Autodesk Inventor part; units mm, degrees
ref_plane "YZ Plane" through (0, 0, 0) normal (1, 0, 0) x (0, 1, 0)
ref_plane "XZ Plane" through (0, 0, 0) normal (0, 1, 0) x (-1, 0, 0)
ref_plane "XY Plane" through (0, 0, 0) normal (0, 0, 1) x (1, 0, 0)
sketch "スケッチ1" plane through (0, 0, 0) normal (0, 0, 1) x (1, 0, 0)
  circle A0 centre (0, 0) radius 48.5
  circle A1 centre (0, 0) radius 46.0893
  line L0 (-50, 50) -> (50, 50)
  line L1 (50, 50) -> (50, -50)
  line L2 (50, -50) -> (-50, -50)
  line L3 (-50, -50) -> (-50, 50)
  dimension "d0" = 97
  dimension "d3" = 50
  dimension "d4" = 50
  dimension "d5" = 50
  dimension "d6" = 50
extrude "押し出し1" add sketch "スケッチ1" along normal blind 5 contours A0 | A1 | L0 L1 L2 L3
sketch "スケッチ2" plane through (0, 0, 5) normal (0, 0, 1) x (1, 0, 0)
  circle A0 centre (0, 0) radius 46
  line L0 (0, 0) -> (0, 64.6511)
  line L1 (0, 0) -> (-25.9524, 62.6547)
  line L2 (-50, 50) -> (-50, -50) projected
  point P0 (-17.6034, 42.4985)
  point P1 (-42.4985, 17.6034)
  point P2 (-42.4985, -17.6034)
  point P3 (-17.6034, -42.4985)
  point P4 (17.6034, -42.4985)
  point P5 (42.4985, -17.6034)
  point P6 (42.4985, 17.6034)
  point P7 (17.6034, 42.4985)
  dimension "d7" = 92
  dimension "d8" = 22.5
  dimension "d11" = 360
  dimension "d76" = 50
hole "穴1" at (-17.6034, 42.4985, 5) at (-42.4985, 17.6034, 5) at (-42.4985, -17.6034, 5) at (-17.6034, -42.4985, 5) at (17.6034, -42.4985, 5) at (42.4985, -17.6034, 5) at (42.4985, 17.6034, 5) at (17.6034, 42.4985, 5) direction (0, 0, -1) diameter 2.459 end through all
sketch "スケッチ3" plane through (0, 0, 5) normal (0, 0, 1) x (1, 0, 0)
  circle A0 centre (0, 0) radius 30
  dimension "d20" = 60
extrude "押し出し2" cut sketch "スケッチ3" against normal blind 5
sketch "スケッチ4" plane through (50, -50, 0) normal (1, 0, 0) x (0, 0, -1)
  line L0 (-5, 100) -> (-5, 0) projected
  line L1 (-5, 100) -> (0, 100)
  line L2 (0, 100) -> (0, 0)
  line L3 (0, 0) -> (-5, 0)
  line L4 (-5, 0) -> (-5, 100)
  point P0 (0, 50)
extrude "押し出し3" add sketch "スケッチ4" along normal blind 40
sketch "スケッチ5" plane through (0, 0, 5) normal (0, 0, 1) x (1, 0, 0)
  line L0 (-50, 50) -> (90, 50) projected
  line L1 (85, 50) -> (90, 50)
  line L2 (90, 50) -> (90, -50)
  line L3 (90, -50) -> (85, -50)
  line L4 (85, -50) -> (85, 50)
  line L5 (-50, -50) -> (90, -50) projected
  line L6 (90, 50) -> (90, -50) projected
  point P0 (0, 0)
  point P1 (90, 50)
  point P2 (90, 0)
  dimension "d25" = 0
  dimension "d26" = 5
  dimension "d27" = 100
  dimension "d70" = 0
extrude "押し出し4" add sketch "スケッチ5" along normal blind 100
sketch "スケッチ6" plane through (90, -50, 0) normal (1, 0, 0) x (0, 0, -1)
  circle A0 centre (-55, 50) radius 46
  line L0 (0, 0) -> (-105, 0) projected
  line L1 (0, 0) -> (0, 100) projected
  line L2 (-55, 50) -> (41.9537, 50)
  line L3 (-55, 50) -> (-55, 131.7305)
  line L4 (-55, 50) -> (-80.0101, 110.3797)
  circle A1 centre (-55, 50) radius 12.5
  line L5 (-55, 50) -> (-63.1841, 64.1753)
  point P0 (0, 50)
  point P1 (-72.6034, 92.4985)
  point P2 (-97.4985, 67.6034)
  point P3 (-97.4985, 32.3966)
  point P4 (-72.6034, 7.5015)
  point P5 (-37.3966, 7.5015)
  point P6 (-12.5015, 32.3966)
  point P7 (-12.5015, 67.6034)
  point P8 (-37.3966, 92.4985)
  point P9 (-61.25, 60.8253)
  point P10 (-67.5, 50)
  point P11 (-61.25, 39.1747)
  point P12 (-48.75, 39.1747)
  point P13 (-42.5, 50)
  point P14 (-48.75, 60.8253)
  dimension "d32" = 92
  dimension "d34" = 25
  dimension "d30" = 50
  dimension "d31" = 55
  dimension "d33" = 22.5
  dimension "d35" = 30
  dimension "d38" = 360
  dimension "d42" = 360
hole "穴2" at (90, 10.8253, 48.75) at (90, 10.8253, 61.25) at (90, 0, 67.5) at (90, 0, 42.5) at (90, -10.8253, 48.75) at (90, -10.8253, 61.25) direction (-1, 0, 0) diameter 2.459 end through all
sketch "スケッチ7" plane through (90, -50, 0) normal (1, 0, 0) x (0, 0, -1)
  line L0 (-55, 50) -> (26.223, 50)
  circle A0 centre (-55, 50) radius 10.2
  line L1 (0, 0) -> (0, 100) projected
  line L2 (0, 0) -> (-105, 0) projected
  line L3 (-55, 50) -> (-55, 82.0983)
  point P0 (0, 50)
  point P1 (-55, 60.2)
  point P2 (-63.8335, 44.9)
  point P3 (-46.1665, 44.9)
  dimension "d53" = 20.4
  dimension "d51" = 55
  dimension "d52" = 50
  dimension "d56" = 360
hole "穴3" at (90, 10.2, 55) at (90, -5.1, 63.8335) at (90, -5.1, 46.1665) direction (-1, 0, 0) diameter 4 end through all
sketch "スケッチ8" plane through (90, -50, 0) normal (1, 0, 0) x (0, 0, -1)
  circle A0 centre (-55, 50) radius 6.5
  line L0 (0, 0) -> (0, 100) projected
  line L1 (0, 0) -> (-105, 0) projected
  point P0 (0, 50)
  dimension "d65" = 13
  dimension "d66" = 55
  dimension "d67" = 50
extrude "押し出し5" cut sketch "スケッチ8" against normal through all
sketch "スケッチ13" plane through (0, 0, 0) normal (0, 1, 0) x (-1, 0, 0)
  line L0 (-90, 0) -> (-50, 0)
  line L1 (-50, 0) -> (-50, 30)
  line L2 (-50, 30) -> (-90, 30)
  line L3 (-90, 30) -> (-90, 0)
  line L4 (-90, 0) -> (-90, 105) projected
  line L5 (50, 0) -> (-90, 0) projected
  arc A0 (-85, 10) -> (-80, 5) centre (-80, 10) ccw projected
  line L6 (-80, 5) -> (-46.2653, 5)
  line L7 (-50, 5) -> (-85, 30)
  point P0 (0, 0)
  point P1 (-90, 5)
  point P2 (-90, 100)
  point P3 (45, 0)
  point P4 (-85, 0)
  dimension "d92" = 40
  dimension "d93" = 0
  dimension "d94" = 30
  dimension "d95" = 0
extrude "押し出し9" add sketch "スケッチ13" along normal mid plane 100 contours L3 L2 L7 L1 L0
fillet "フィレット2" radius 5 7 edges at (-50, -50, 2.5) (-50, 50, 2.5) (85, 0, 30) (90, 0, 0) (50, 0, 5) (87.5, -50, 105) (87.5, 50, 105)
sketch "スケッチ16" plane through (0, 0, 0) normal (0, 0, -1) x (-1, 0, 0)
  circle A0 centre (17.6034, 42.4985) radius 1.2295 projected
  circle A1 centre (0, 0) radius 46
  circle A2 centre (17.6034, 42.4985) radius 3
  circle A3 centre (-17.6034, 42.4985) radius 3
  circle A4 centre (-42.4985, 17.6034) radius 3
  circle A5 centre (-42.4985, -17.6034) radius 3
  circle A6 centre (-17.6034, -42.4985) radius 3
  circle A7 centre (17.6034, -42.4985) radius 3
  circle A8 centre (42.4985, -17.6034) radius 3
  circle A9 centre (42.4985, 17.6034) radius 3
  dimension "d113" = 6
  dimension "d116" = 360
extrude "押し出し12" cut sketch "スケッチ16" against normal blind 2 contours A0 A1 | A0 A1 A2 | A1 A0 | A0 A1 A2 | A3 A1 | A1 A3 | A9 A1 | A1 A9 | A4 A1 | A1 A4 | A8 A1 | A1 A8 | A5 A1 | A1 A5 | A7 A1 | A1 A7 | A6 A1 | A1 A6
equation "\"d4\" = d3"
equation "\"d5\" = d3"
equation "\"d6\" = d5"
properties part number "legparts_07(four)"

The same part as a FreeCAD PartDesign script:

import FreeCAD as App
import Part
import Sketcher

V = App.Vector


def edges_at(feature, points):
    """Names of the edges that pass closest to the given points."""
    edges = feature.Shape.Edges
    near = lambda p: min(range(len(edges)), key=lambda i: edges[i].distToShape(Part.Vertex(*p))[0])
    return sorted({f"Edge{near(p) + 1}" for p in points})


def add_polygon(sketch, points):
    """Adds a closed chain of lines whose ends are joined by coincident constraints."""
    first, n = sketch.GeometryCount, len(points)
    for a, b in zip(points, points[1:] + points[:1]):
        sketch.addGeometry(Part.LineSegment(App.Vector(*a, 0), App.Vector(*b, 0)), False)
    for i in range(n):
        sketch.addConstraint(Sketcher.Constraint("Coincident", first + i, 2, first + (i + 1) % n, 1))

doc = App.newDocument("Part")
body = doc.addObject("PartDesign::Body", "Body")

# Sketch on XY plane
sketch1 = body.newObject("Sketcher::SketchObject", "Sketch")
sketch1.AttachmentSupport = (doc.getObject("XY_Plane"), [""])
sketch1.MapMode = "FlatFace"
add_polygon(sketch1, [(50, 50), (-50, 50), (-50, -50), (50, -50)])  # lines 0-3
sketch1.addConstraint([
    Sketcher.Constraint("Horizontal", 0),
    Sketcher.Constraint("Vertical", 1),
    Sketcher.Constraint("Horizontal", 2),
    Sketcher.Constraint("Vertical", 3),
    Sketcher.Constraint("Symmetric", 0, 2, 2, 2, -1, 1),
    Sketcher.Constraint("Equal", 2, 1),
    Sketcher.Constraint("DistanceX", 0, 2, -1, 1, 50.0),
])
pad1 = body.newObject("PartDesign::Pad", "Pad")
pad1.Profile = sketch1
pad1.Length = 5

# Sketch on XY plane
sketch2 = body.newObject("Sketcher::SketchObject", "Sketch001")
sketch2.AttachmentSupport = (doc.getObject("XY_Plane"), [""])
sketch2.MapMode = "FlatFace"
sketch2.AttachmentOffset = App.Placement(V(0, 0, 5), App.Rotation())
sketch2.addGeometry([
    Part.Circle(V(-17.6, 42.5, 0), V(0, 0, 1), 1.2),  # 0
    Part.Circle(V(-42.5, 17.6, 0), V(0, 0, 1), 1.2),  # 1
    Part.Circle(V(-42.5, -17.6, 0), V(0, 0, 1), 1.2),  # 2
    Part.Circle(V(-17.6, -42.5, 0), V(0, 0, 1), 1.2),  # 3
    Part.Circle(V(17.6, -42.5, 0), V(0, 0, 1), 1.2),  # 4
    Part.Circle(V(42.5, -17.6, 0), V(0, 0, 1), 1.2),  # 5
    Part.Circle(V(42.5, 17.6, 0), V(0, 0, 1), 1.2),  # 6
    Part.Circle(V(17.6, 42.5, 0), V(0, 0, 1), 1.2),  # 7
], False)
sketch2.addConstraint([
    Sketcher.Constraint("Equal", 0, 1),
    Sketcher.Constraint("Equal", 1, 2),
    Sketcher.Constraint("Equal", 2, 3),
    Sketcher.Constraint("Equal", 3, 4),
    Sketcher.Constraint("Equal", 4, 5),
    Sketcher.Constraint("Equal", 5, 6),
    Sketcher.Constraint("Equal", 6, 7),
    Sketcher.Constraint("Symmetric", 0, 3, 4, 3, -1, 1),
    Sketcher.Constraint("Symmetric", 1, 3, 5, 3, -1, 1),
    Sketcher.Constraint("Symmetric", 2, 3, 6, 3, -1, 1),
    Sketcher.Constraint("Symmetric", 3, 3, 7, 3, -1, 1),
    Sketcher.Constraint("Symmetric", 3, 3, 4, 3, -2),
    Sketcher.Constraint("Symmetric", 2, 3, 5, 3, -2),
    Sketcher.Constraint("Diameter", 0, 2.459),
    Sketcher.Constraint("DistanceX", 1, 3, 0, 3, 24.895),
    Sketcher.Constraint("DistanceY", 1, 3, 0, 3, 24.895),
    Sketcher.Constraint("DistanceY", 2, 3, 0, 3, 60.102),
    Sketcher.Constraint("DistanceX", 2, 3, 4, 3, 60.102),
])
doc.recompute()
hole = body.newObject("PartDesign::Hole", "Hole")
hole.Profile = sketch2
hole.ThreadType = "None"
hole.Diameter = 2.459
hole.DepthType = "ThroughAll"

# Sketch on XY plane
sketch3 = body.newObject("Sketcher::SketchObject", "Sketch002")
sketch3.AttachmentSupport = (doc.getObject("XY_Plane"), [""])
sketch3.MapMode = "FlatFace"
sketch3.AttachmentOffset = App.Placement(V(0, 0, 5), App.Rotation())
sketch3.addGeometry(Part.Circle(V(0, 0, 0), V(0, 0, 1), 30), False)
sketch3.addConstraint([
    Sketcher.Constraint("Coincident", 0, 3, -1, 1),
    Sketcher.Constraint("Diameter", 0, 60.0),
])
pocket1 = body.newObject("PartDesign::Pocket", "Pocket")
pocket1.Profile = sketch3
pocket1.Length = 5

# Sketch on YZ plane
sketch4 = body.newObject("Sketcher::SketchObject", "Sketch003")
sketch4.AttachmentSupport = (doc.getObject("YZ_Plane"), [""])
sketch4.MapMode = "FlatFace"
sketch4.AttachmentOffset = App.Placement(V(0, 0, 50), App.Rotation())
add_polygon(sketch4, [(50, 0), (50, 5), (-50, 5), (-50, 0)])  # lines 0-3
sketch4.addConstraint([
    Sketcher.Constraint("Vertical", 0),
    Sketcher.Constraint("Horizontal", 1),
    Sketcher.Constraint("Vertical", 2),
    Sketcher.Constraint("Horizontal", 3),
    Sketcher.Constraint("Symmetric", 2, 2, 3, 2, -1, 1),
    Sketcher.Constraint("DistanceX", 1, 2, 1, 1, 100.0),
    Sketcher.Constraint("DistanceY", 0, 1, 0, 2, 5.0),
])
pad2 = body.newObject("PartDesign::Pad", "Pad001")
pad2.Profile = sketch4
pad2.Length = 40

# Sketch on XY plane
sketch5 = body.newObject("Sketcher::SketchObject", "Sketch004")
sketch5.AttachmentSupport = (doc.getObject("XY_Plane"), [""])
sketch5.MapMode = "FlatFace"
sketch5.AttachmentOffset = App.Placement(V(0, 0, 5), App.Rotation())
add_polygon(sketch5, [(90, 50), (85, 50), (85, -50), (90, -50)])  # lines 0-3
sketch5.addConstraint([
    Sketcher.Constraint("Horizontal", 0),
    Sketcher.Constraint("Vertical", 1),
    Sketcher.Constraint("Horizontal", 2),
    Sketcher.Constraint("Vertical", 3),
    Sketcher.Constraint("DistanceX", 0, 2, 0, 1, 5.0),
    Sketcher.Constraint("DistanceY", 1, 2, 1, 1, 100.0),
    Sketcher.Constraint("DistanceX", -1, 1, 0, 2, 85.0),
    Sketcher.Constraint("DistanceY", -1, 1, 0, 2, 50.0),
])
pad3 = body.newObject("PartDesign::Pad", "Pad002")
pad3.Profile = sketch5
pad3.Length = 100

# Sketch on YZ plane
sketch6 = body.newObject("Sketcher::SketchObject", "Sketch005")
sketch6.AttachmentSupport = (doc.getObject("YZ_Plane"), [""])
sketch6.MapMode = "FlatFace"
sketch6.AttachmentOffset = App.Placement(V(0, 0, 90), App.Rotation())
sketch6.addGeometry([
    Part.Circle(V(10.8, 48.8, 0), V(0, 0, 1), 1.2),  # 0
    Part.Circle(V(10.8, 61.2, 0), V(0, 0, 1), 1.2),  # 1
    Part.Circle(V(0, 67.5, 0), V(0, 0, 1), 1.2),  # 2
    Part.Circle(V(0, 42.5, 0), V(0, 0, 1), 1.2),  # 3
    Part.Circle(V(-10.8, 48.8, 0), V(0, 0, 1), 1.2),  # 4
    Part.Circle(V(-10.8, 61.2, 0), V(0, 0, 1), 1.2),  # 5
], False)
sketch6.addConstraint([
    Sketcher.Constraint("Equal", 0, 1),
    Sketcher.Constraint("Equal", 1, 2),
    Sketcher.Constraint("Equal", 2, 3),
    Sketcher.Constraint("Equal", 3, 4),
    Sketcher.Constraint("Equal", 4, 5),
    Sketcher.Constraint("Symmetric", 0, 3, 4, 3, -2),
    Sketcher.Constraint("Symmetric", 1, 3, 5, 3, -2),
    Sketcher.Constraint("PointOnObject", 2, 3, -2),
    Sketcher.Constraint("PointOnObject", 3, 3, -2),
    Sketcher.Constraint("Vertical", 0, 3, 1, 3),
    Sketcher.Constraint("Diameter", 0, 2.459),
    Sketcher.Constraint("DistanceY", 3, 3, 2, 3, 25.0),
    Sketcher.Constraint("DistanceY", -1, 1, 2, 3, 67.5),
    Sketcher.Constraint("DistanceY", 0, 3, 1, 3, 12.5),
    Sketcher.Constraint("DistanceY", -1, 1, 0, 3, 48.75),
    Sketcher.Constraint("DistanceX", -1, 1, 0, 3, 10.8253),
])
doc.recompute()
hole2 = body.newObject("PartDesign::Hole", "Hole001")
hole2.Profile = sketch6
hole2.ThreadType = "None"
hole2.Diameter = 2.459
hole2.DepthType = "ThroughAll"

# Sketch on YZ plane
sketch7 = body.newObject("Sketcher::SketchObject", "Sketch006")
sketch7.AttachmentSupport = (doc.getObject("YZ_Plane"), [""])
sketch7.MapMode = "FlatFace"
sketch7.AttachmentOffset = App.Placement(V(0, 0, 90), App.Rotation())
sketch7.addGeometry([
    Part.Circle(V(10.2, 55, 0), V(0, 0, 1), 2),
    Part.Circle(V(-5.1, 63.8, 0), V(0, 0, 1), 2),
    Part.Circle(V(-5.1, 46.2, 0), V(0, 0, 1), 2),
], False)
sketch7.addConstraint([
    Sketcher.Constraint("Equal", 0, 1),
    Sketcher.Constraint("Equal", 1, 2),
    Sketcher.Constraint("Vertical", 1, 3, 2, 3),
    Sketcher.Constraint("Diameter", 0, 4.0),
    Sketcher.Constraint("DistanceY", -1, 1, 0, 3, 55.0),
    Sketcher.Constraint("DistanceX", -1, 1, 0, 3, 10.2),
    Sketcher.Constraint("DistanceX", 1, 3, -1, 1, 5.1),
    Sketcher.Constraint("DistanceY", 2, 3, 1, 3, 17.667),
    Sketcher.Constraint("DistanceY", -1, 1, 1, 3, 63.8335),
])
doc.recompute()
hole3 = body.newObject("PartDesign::Hole", "Hole002")
hole3.Profile = sketch7
hole3.ThreadType = "None"
hole3.Diameter = 4
hole3.DepthType = "ThroughAll"

# Sketch on YZ plane
sketch8 = body.newObject("Sketcher::SketchObject", "Sketch007")
sketch8.AttachmentSupport = (doc.getObject("YZ_Plane"), [""])
sketch8.MapMode = "FlatFace"
sketch8.AttachmentOffset = App.Placement(V(0, 0, 90), App.Rotation())
sketch8.addGeometry(Part.Circle(V(0, 55, 0), V(0, 0, 1), 6), False)
sketch8.addConstraint([
    Sketcher.Constraint("PointOnObject", 0, 3, -2),
    Sketcher.Constraint("Diameter", 0, 13.0),
    Sketcher.Constraint("DistanceY", -1, 1, 0, 3, 55.0),
])
pocket2 = body.newObject("PartDesign::Pocket", "Pocket001")
pocket2.Profile = sketch8
pocket2.Type = "ThroughAll"

# Sketch on XZ plane
sketch9 = body.newObject("Sketcher::SketchObject", "Sketch008")
sketch9.AttachmentSupport = (doc.getObject("XZ_Plane"), [""])
sketch9.MapMode = "FlatFace"
add_polygon(sketch9, [(90, 30), (90, 0), (50, 0), (50, 5), (85, 30)])  # lines 0-4
sketch9.addConstraint([
    Sketcher.Constraint("Vertical", 0),
    Sketcher.Constraint("Horizontal", 1),
    Sketcher.Constraint("Vertical", 2),
    Sketcher.Constraint("Horizontal", 4),
    Sketcher.Constraint("PointOnObject", 0, 2, -1),
    Sketcher.Constraint("Equal", 4, 2),
    Sketcher.Constraint("DistanceX", 1, 2, 1, 1, 40.0),
    Sketcher.Constraint("DistanceY", 0, 2, 0, 1, 30.0),
    Sketcher.Constraint("DistanceX", 4, 1, 4, 2, 5.0),
    Sketcher.Constraint("DistanceX", -1, 1, 0, 2, 90.0),
])
pad4 = body.newObject("PartDesign::Pad", "Pad003")
pad4.Profile = sketch9
pad4.Length = 100
pad4.Midplane = True
doc.recompute()

fillet = body.newObject("PartDesign::Fillet", "Fillet")
fillet.Base = (pad4, edges_at(pad4, [
    (-50, -50, 2.5),
    (-50, 50, 2.5),
    (85, 0, 30),
    (90, 0, 0),
    (50, 0, 5),
    (87.5, -50, 105),
    (87.5, 50, 105),
]))
fillet.Radius = 5

# Sketch on XY plane
sketch10 = body.newObject("Sketcher::SketchObject", "Sketch009")
sketch10.AttachmentSupport = (doc.getObject("XY_Plane"), [""])
sketch10.MapMode = "FlatFace"
sketch10.addGeometry([
    Part.Circle(V(-17.6, 42.5, 0), V(0, 0, 1), 3),  # 0
    Part.Circle(V(17.6, 42.5, 0), V(0, 0, 1), 3),  # 1
    Part.Circle(V(-42.5, 17.6, 0), V(0, 0, 1), 3),  # 2
    Part.Circle(V(42.5, 17.6, 0), V(0, 0, 1), 3),  # 3
    Part.Circle(V(-42.5, -17.6, 0), V(0, 0, 1), 3),  # 4
    Part.Circle(V(42.5, -17.6, 0), V(0, 0, 1), 3),  # 5
    Part.Circle(V(-17.6, -42.5, 0), V(0, 0, 1), 3),  # 6
    Part.Circle(V(17.6, -42.5, 0), V(0, 0, 1), 3),  # 7
], False)
sketch10.addConstraint([
    Sketcher.Constraint("Equal", 0, 1),
    Sketcher.Constraint("Equal", 1, 2),
    Sketcher.Constraint("Equal", 2, 3),
    Sketcher.Constraint("Equal", 3, 4),
    Sketcher.Constraint("Equal", 4, 5),
    Sketcher.Constraint("Equal", 5, 6),
    Sketcher.Constraint("Equal", 6, 7),
    Sketcher.Constraint("Symmetric", 3, 3, 4, 3, -1, 1),
    Sketcher.Constraint("Symmetric", 2, 3, 5, 3, -1, 1),
    Sketcher.Constraint("Symmetric", 1, 3, 6, 3, -1, 1),
    Sketcher.Constraint("Symmetric", 0, 3, 7, 3, -1, 1),
    Sketcher.Constraint("Symmetric", 0, 3, 1, 3, -2),
    Sketcher.Constraint("Symmetric", 2, 3, 3, 3, -2),
    Sketcher.Constraint("Diameter", 0, 6.0),
    Sketcher.Constraint("DistanceX", 2, 3, 0, 3, 24.895),
    Sketcher.Constraint("DistanceY", 2, 3, 0, 3, 24.895),
    Sketcher.Constraint("DistanceX", 2, 3, 1, 3, 60.102),
    Sketcher.Constraint("DistanceY", 4, 3, 0, 3, 60.102),
])
pocket3 = body.newObject("PartDesign::Pocket", "Pocket002")
pocket3.Profile = sketch10
pocket3.Length = 2
pocket3.Reversed = True

doc.recompute()
